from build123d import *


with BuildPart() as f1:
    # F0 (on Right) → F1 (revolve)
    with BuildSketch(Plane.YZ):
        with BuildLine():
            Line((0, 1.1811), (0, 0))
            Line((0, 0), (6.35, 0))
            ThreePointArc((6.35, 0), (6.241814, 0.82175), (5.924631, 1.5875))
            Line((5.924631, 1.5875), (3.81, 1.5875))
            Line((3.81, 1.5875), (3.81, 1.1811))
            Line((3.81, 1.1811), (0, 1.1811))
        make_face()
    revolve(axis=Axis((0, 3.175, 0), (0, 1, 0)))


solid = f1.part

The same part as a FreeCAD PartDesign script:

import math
import FreeCAD as App
import Part
import Sketcher
from FreeCAD import Vector
Q = App.Units.Quantity

doc = App.newDocument("Part")
body = doc.addObject("PartDesign::Body", "Body")

sketch1 = doc.addObject("Sketcher::SketchObject", "Sketch")
body.addObject(sketch1)
sketch1.AttachmentSupport = (doc.YZ_Plane, [""])
sketch1.MapMode = "FlatFace"
sketch1.addGeometry(Part.LineSegment(Vector(0, 1.18, 0), Vector(0, 0, 0)), False)
sketch1.addGeometry(Part.LineSegment(Vector(0, 0, 0), Vector(6.35, 0, 0)), False)
sketch1.addGeometry(Part.ArcOfCircle(Part.Circle(Vector(3.17, 0, 0), Vector(0, 0, 1), 3.18), math.radians(0), math.radians(30)), False)
sketch1.addGeometry(Part.LineSegment(Vector(5.92, 1.59, 0), Vector(3.81, 1.59, 0)), False)
sketch1.addGeometry(Part.LineSegment(Vector(3.81, 1.59, 0), Vector(3.81, 1.18, 0)), False)
sketch1.addGeometry(Part.LineSegment(Vector(3.81, 1.18, 0), Vector(0, 1.18, 0)), False)
sketch1.addConstraint(Sketcher.Constraint("Coincident", 0, 2, 1, 1))
sketch1.addConstraint(Sketcher.Constraint("Coincident", 1, 2, 2, 1))
sketch1.addConstraint(Sketcher.Constraint("Coincident", 2, 2, 3, 1))
sketch1.addConstraint(Sketcher.Constraint("Coincident", 3, 2, 4, 1))
sketch1.addConstraint(Sketcher.Constraint("Coincident", 4, 2, 5, 1))
sketch1.addConstraint(Sketcher.Constraint("Coincident", 5, 2, 0, 1))
sketch1.addConstraint(Sketcher.Constraint("Vertical", 0))
sketch1.addConstraint(Sketcher.Constraint("Horizontal", 1))
sketch1.addConstraint(Sketcher.Constraint("Horizontal", 3))
sketch1.addConstraint(Sketcher.Constraint("Vertical", 4))
sketch1.addConstraint(Sketcher.Constraint("Horizontal", 5))
sketch1.addConstraint(Sketcher.Constraint("Coincident", 0, 2, -1, 1))
sketch1.addConstraint(Sketcher.Constraint("DistanceX", 1, 1, 1, 2, Q("0.25 in")))
sketch1.addConstraint(Sketcher.Constraint("DistanceX", 5, 2, 5, 1, Q("0.15 in")))
sketch1.addConstraint(Sketcher.Constraint("DistanceY", 4, 2, 4, 1, Q("0.016 in")))
sketch1.addConstraint(Sketcher.Constraint("DistanceY", 0, 2, 0, 1, Q("0.0465 in")))
sketch1.addConstraint(Sketcher.Constraint("Radius", 2, Q("3.175021 mm")))
sketch1.addConstraint(Sketcher.Constraint("DistanceX", 3, 2, 3, 1, Q("2.114631 mm")))
revolution = doc.addObject("PartDesign::Revolution", "Revolution")
body.addObject(revolution)
revolution.Profile = sketch1
revolution.ReferenceAxis = (sketch1, ["H_Axis"])
revolution.Angle = 360

doc.recompute()
